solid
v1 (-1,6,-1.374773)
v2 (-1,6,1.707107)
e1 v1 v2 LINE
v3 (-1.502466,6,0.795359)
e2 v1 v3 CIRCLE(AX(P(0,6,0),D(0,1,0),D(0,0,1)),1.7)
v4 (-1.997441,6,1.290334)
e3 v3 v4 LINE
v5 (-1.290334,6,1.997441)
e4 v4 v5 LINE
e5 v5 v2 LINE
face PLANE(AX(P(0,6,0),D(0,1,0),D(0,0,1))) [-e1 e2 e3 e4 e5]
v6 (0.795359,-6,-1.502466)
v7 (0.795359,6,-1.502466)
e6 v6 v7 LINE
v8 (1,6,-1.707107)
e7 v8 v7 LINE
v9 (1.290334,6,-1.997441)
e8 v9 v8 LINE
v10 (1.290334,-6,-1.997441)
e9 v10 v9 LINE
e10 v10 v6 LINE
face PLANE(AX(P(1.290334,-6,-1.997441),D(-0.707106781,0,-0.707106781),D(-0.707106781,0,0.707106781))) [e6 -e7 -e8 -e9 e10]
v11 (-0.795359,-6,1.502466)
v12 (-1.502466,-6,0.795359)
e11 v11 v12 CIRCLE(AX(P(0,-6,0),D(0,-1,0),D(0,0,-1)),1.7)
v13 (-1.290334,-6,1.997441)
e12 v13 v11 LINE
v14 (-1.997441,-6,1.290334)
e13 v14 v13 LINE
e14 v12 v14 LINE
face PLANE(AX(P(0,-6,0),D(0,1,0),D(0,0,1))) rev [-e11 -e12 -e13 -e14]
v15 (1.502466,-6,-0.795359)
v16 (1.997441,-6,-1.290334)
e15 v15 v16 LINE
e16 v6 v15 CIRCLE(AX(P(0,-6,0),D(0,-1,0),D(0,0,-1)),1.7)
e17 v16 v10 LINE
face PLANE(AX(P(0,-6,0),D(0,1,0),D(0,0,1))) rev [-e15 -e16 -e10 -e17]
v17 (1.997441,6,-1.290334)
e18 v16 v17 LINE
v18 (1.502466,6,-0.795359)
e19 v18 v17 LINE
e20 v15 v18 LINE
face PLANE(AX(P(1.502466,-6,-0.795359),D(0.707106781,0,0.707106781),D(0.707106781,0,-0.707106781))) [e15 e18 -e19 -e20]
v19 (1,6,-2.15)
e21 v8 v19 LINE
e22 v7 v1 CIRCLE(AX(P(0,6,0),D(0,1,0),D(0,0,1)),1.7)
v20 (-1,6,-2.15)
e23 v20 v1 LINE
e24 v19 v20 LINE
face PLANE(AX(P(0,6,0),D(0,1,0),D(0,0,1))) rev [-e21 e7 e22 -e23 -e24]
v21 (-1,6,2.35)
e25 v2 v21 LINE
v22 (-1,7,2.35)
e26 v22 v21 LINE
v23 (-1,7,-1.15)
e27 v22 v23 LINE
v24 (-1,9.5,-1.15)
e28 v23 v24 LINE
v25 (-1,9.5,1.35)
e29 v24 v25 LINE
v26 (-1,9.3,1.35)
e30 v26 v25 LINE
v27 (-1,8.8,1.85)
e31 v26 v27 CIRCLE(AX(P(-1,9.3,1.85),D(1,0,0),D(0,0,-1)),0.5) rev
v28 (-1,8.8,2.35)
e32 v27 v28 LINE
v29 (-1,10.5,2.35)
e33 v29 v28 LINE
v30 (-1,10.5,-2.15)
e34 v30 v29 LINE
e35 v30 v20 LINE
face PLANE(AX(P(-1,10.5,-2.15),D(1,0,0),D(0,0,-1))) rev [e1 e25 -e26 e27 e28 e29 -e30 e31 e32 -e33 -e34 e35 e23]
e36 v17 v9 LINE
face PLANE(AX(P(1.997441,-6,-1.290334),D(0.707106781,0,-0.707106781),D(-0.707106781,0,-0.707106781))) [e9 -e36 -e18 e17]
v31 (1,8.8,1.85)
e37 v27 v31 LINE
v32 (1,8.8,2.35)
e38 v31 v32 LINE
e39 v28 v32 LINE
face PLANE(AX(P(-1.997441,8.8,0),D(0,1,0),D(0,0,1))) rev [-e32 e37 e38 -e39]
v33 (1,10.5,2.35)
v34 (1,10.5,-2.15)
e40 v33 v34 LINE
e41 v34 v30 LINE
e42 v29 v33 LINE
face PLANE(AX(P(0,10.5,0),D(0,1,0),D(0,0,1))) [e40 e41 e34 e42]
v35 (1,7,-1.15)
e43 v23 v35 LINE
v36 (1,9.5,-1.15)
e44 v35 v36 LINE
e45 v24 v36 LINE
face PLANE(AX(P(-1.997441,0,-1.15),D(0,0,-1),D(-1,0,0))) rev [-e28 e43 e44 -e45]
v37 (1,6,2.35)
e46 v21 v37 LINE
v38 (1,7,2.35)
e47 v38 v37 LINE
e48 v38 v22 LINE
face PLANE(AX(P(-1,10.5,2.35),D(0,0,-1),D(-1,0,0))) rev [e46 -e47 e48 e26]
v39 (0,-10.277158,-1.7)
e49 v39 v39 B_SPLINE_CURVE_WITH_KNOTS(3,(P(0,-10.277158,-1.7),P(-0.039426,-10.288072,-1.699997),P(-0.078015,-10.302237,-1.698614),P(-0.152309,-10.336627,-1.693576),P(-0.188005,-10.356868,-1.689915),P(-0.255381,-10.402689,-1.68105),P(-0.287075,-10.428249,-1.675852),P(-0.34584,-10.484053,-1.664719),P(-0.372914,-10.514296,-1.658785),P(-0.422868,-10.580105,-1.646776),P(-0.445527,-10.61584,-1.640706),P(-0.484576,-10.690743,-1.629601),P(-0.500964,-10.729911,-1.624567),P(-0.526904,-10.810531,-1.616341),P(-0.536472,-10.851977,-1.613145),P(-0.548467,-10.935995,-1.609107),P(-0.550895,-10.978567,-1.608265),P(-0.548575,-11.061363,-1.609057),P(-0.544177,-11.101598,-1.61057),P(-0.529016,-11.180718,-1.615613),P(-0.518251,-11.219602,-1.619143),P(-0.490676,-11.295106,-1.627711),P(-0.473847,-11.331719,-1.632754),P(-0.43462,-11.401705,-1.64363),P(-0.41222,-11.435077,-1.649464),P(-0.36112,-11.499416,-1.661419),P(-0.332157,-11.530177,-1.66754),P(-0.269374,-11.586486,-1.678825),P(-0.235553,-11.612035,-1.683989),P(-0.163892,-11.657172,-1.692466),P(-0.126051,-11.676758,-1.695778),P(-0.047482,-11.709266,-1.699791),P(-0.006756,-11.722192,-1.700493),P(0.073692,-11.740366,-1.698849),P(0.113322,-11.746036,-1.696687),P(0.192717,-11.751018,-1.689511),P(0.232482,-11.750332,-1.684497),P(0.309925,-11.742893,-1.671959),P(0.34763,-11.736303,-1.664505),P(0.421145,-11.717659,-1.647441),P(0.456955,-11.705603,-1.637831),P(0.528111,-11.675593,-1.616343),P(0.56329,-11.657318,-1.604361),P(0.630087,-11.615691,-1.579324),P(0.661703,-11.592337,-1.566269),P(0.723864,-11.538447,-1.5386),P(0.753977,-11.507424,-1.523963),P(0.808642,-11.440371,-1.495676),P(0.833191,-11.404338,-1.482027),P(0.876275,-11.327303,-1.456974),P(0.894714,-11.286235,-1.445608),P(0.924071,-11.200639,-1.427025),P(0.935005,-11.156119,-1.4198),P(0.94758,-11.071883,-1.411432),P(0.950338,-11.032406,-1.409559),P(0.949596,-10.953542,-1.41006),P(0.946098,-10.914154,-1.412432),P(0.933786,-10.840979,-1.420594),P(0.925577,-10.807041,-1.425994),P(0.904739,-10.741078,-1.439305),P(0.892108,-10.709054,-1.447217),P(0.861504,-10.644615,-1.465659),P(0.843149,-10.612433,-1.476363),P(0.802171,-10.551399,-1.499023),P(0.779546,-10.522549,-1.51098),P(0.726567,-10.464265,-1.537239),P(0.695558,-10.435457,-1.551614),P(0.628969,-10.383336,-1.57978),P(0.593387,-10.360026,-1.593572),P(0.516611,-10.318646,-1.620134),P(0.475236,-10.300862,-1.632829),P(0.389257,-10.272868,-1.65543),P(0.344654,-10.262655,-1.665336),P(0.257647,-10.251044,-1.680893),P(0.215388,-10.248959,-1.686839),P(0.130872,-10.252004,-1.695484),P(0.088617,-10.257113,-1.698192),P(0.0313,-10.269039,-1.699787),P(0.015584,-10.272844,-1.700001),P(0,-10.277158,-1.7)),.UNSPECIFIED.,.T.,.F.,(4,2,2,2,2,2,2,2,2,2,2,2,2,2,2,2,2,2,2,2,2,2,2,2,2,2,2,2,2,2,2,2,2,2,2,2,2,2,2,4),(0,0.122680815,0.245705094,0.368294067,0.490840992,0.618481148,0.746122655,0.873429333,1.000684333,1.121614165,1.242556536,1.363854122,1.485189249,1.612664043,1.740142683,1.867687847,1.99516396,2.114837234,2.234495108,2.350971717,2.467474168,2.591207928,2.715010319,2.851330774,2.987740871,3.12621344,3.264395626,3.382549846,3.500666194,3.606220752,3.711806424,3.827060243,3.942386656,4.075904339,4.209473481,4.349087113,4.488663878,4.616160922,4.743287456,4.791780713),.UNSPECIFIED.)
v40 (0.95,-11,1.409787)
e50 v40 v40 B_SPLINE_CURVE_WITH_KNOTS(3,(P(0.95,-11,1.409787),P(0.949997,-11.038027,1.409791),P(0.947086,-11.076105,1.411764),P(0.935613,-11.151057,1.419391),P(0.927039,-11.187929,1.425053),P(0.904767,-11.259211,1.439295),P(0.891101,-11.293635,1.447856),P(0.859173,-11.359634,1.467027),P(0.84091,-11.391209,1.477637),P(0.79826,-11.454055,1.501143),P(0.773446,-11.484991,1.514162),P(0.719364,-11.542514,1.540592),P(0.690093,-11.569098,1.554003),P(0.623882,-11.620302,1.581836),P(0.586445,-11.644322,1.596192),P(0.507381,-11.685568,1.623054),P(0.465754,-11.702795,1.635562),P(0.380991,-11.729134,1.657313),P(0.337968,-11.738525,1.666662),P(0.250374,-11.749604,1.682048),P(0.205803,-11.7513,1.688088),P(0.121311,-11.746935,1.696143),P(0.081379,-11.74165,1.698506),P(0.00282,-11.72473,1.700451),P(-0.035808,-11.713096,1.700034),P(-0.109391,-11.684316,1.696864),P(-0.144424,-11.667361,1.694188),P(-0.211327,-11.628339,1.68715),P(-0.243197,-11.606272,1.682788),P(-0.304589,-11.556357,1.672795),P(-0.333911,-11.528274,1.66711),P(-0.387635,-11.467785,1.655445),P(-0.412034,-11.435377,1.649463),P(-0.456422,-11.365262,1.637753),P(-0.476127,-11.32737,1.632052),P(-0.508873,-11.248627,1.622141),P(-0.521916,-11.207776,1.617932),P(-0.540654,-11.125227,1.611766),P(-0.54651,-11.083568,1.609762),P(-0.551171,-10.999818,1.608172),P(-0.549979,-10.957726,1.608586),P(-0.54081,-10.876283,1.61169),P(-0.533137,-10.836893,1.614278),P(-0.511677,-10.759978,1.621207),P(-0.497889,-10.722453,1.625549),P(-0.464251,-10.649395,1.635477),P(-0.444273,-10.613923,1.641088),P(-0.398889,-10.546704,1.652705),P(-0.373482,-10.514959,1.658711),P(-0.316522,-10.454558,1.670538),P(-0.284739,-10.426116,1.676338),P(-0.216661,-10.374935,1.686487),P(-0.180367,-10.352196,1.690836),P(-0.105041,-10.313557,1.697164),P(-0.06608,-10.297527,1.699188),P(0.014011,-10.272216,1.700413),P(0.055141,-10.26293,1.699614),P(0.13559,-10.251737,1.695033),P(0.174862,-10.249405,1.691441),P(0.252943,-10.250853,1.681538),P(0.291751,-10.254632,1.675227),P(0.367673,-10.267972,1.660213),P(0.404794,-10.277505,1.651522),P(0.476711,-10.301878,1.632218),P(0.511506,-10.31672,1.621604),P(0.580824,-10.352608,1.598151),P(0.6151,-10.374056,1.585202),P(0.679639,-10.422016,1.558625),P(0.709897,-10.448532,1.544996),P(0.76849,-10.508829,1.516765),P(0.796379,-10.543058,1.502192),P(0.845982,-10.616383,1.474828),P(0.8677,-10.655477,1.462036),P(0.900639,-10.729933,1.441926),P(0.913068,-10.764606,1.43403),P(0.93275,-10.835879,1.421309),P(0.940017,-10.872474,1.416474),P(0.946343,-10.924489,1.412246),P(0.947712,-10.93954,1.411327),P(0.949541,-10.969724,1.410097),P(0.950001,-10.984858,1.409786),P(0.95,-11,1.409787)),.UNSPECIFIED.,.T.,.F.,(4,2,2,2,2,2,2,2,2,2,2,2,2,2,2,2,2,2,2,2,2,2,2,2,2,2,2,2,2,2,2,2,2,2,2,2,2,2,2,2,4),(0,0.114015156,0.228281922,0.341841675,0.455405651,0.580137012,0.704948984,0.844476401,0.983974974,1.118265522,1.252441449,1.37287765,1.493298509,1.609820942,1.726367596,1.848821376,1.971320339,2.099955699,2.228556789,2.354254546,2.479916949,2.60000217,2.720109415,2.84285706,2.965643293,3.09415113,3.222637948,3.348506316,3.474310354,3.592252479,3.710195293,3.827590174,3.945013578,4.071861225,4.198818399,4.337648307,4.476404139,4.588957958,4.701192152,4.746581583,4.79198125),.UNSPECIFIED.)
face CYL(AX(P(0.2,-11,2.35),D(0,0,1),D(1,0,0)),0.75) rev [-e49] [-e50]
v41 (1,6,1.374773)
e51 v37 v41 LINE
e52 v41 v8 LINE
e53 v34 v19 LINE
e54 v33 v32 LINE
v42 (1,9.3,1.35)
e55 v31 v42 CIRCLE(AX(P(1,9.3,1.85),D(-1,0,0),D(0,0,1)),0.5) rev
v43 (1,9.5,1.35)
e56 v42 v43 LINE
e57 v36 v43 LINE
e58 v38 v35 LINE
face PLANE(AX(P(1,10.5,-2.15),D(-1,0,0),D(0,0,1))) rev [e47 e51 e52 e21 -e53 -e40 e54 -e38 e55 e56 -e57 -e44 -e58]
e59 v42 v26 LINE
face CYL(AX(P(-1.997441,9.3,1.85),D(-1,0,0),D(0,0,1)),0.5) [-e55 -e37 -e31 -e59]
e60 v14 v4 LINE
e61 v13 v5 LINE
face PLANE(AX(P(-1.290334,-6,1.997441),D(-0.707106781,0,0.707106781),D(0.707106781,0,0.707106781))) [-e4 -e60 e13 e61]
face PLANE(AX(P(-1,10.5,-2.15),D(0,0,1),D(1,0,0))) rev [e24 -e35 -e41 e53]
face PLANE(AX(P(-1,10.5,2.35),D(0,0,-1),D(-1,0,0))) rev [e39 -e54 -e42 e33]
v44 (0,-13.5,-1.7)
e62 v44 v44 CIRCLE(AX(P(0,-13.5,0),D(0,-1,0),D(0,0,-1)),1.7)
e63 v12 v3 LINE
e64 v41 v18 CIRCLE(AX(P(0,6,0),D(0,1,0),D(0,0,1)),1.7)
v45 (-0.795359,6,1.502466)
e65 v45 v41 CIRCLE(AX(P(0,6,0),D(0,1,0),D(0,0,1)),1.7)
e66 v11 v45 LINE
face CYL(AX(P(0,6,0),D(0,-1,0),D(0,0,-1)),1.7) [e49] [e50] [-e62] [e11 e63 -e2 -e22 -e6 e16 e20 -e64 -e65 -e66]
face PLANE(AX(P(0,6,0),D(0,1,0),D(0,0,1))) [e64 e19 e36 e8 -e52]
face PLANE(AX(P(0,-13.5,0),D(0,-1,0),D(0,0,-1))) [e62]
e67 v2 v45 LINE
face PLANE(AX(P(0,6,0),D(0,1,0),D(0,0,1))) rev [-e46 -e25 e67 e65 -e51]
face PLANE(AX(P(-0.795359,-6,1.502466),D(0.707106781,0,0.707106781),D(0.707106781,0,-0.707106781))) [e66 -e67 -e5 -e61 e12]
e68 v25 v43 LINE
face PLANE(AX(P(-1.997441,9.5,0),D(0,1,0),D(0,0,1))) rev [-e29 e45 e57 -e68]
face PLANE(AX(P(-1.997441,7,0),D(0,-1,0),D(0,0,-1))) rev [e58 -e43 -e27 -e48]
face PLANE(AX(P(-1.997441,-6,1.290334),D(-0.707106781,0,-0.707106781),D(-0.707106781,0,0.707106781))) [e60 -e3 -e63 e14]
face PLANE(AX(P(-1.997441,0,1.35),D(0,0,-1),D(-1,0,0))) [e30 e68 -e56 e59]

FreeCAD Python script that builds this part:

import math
import FreeCAD as App
import Part
import Sketcher

V = App.Vector
Q = App.Units.Quantity


def edges_at(feature, points):
    """Names of the edges that pass closest to the given points."""
    edges = feature.Shape.Edges
    near = lambda p: min(range(len(edges)), key=lambda i: edges[i].distToShape(Part.Vertex(*p))[0])
    return sorted({f"Edge{near(p) + 1}" for p in points})


def add_polygon(sketch, points):
    """Adds a closed chain of lines whose ends are joined by coincident constraints."""
    first, n = sketch.GeometryCount, len(points)
    for a, b in zip(points, points[1:] + points[:1]):
        sketch.addGeometry(Part.LineSegment(App.Vector(*a, 0), App.Vector(*b, 0)), False)
    for i in range(n):
        sketch.addConstraint(Sketcher.Constraint("Coincident", first + i, 2, first + (i + 1) % n, 1))

doc = App.newDocument("Part")
body = doc.addObject("PartDesign::Body", "Body")

sketch1 = body.newObject("Sketcher::SketchObject", "Sketch")
sketch1.AttachmentSupport = (doc.getObject("XZ_Plane"), [""])
sketch1.MapMode = "FlatFace"
sketch1.addGeometry(Part.Circle(V(0, 0, 0), V(0, 0, 1), 1.7), False)
sketch1.addConstraint([
    Sketcher.Constraint("Coincident", 0, 3, -1, 1),
    Sketcher.Constraint("Diameter", 0, 3.4),
])
pad1 = body.newObject("PartDesign::Pad", "Pad")
pad1.Profile = sketch1
pad1.Length = 12
pad1.Midplane = True

sketch2 = body.newObject("Sketcher::SketchObject", "Sketch001")
sketch2.AttachmentSupport = (doc.getObject("XZ_Plane"), [""])
sketch2.MapMode = "FlatFace"
sketch2.AttachmentOffset = App.Placement(V(0, 0, -6), App.Rotation())
sketch2.addGeometry([
    Part.LineSegment(V(-1.3, 2, 0), V(-0.8, 1.5, 0)),
    Part.ArcOfCircle(Part.Circle(V(0, 0, 0), V(0, 0, 1), 1.7), math.radians(118), math.radians(152)),
    Part.LineSegment(V(-1.5, 0.8, 0), V(-2, 1.3, 0)),
    Part.LineSegment(V(-2, 1.3, 0), V(-1.3, 2, 0)),
    Part.LineSegment(V(1.3, -2, 0), V(0.8, -1.5, 0)),
    Part.ArcOfCircle(Part.Circle(V(0, 0, 0), V(0, 0, 1), 1.7), math.radians(-62), math.radians(-28)),
    Part.LineSegment(V(1.5, -0.8, 0), V(2, -1.3, 0)),
    Part.LineSegment(V(2, -1.3, 0), V(1.3, -2, 0)),
], False)
sketch2.addConstraint([
    Sketcher.Constraint("Coincident", 0, 2, 1, 1),
    Sketcher.Constraint("Coincident", 1, 2, 2, 1),
    Sketcher.Constraint("Coincident", 2, 2, 3, 1),
    Sketcher.Constraint("Coincident", 3, 2, 0, 1),
    Sketcher.Constraint("Coincident", 4, 2, 5, 1),
    Sketcher.Constraint("Coincident", 5, 2, 6, 1),
    Sketcher.Constraint("Coincident", 6, 2, 7, 1),
    Sketcher.Constraint("Coincident", 7, 2, 4, 1),
    Sketcher.Constraint("Coincident", 1, 3, -1, 1),
    Sketcher.Constraint("Coincident", 5, 3, -1, 1),
    Sketcher.Constraint("Equal", 1, 5),
    Sketcher.Constraint("Symmetric", 2, 2, 6, 2, -1, 1),
    Sketcher.Constraint("Symmetric", 3, 2, 7, 2, -1, 1),
    Sketcher.Constraint("Parallel", 0, 2),
    Sketcher.Constraint("Perpendicular", 2, 3),
    Sketcher.Constraint("Perpendicular", 3, 4),
    Sketcher.Constraint("Parallel", 4, 6),
    Sketcher.Constraint("Equal", 0, 2),
    Sketcher.Constraint("Radius", 1, 1.7),
    Sketcher.Constraint("Angle", 0, Q("-45 deg")),
    Sketcher.Constraint("Distance", 3, 1.0),
    Sketcher.Constraint("Distance", 0, 0.7),
])
pad2 = body.newObject("PartDesign::Pad", "Pad001")
pad2.Profile = sketch2
pad2.Length = 12

sketch3 = body.newObject("Sketcher::SketchObject", "Sketch002")
sketch3.AttachmentSupport = (doc.getObject("XZ_Plane"), [""])
sketch3.MapMode = "FlatFace"
sketch3.AttachmentOffset = App.Placement(V(0, 0, -6), App.Rotation())
add_polygon(sketch3, [(-1, -2.1), (-1, 2.4), (1, 2.4), (1, -2.1)])
sketch3.addConstraint([
    Sketcher.Constraint("Vertical", 0),
    Sketcher.Constraint("Horizontal", 1),
    Sketcher.Constraint("Vertical", 2),
    Sketcher.Constraint("Horizontal", 3),
    Sketcher.Constraint("DistanceX", 1, 1, 1, 2, 2.0),
    Sketcher.Constraint("DistanceY", 0, 1, 0, 2, 4.5),
    Sketcher.Constraint("DistanceX", 0, 2, -1, 1, 1.0),
    Sketcher.Constraint("DistanceY", -1, 1, 0, 2, 2.35),
])
pad3 = body.newObject("PartDesign::Pad", "Pad002")
pad3.Profile = sketch3
pad3.Length = 4.5
pad3.Reversed = True

sketch4 = body.newObject("Sketcher::SketchObject", "Sketch003")
sketch4.AttachmentSupport = (doc.getObject("YZ_Plane"), [""])
sketch4.MapMode = "FlatFace"
sketch4.AttachmentOffset = App.Placement(V(0, 0, 1), App.Rotation())
add_polygon(sketch4, [(7, 2.4), (7, -1.1), (9.5, -1.1), (9.5, 1.4), (8.8, 1.4), (8.8, 2.4)])
sketch4.addConstraint([
    Sketcher.Constraint("Vertical", 0),
    Sketcher.Constraint("Horizontal", 1),
    Sketcher.Constraint("Vertical", 2),
    Sketcher.Constraint("Horizontal", 3),
    Sketcher.Constraint("Vertical", 4),
    Sketcher.Constraint("Horizontal", 5),
    Sketcher.Constraint("Equal", 1, 2),
    Sketcher.Constraint("DistanceY", 4, 1, 4, 2, 1.0),
    Sketcher.Constraint("DistanceX", 1, 1, 1, 2, 2.5),
    Sketcher.Constraint("DistanceX", 3, 2, 3, 1, 0.7),
    Sketcher.Constraint("DistanceX", -1, 1, 0, 2, 7.0),
    Sketcher.Constraint("DistanceY", 0, 2, -1, 1, 1.15),
])
pocket1 = body.newObject("PartDesign::Pocket", "Pocket")
pocket1.Profile = sketch4
pocket1.Type = "ThroughAll"
doc.recompute()

fillet = body.newObject("PartDesign::Fillet", "Fillet")
fillet.Base = (pocket1, edges_at(pocket1, [(0, 8.8, 1.35)]))
fillet.Radius = 0.5

sketch5 = body.newObject("Sketcher::SketchObject", "Sketch004")
sketch5.AttachmentSupport = (doc.getObject("XZ_Plane"), [""])
sketch5.MapMode = "FlatFace"
sketch5.AttachmentOffset = App.Placement(V(0, 0, 6), App.Rotation())
sketch5.addGeometry(Part.Circle(V(0, 0, 0), V(0, 0, 1), 1.7), False)
sketch5.addConstraint([
    Sketcher.Constraint("Coincident", 0, 3, -1, 1),
    Sketcher.Constraint("Diameter", 0, 3.4),
])
pad4 = body.newObject("PartDesign::Pad", "Pad003")
pad4.Profile = sketch5
pad4.Length = 2

sketch6 = body.newObject("Sketcher::SketchObject", "Sketch005")
sketch6.AttachmentSupport = (doc.getObject("XZ_Plane"), [""])
sketch6.MapMode = "FlatFace"
sketch6.AttachmentOffset = App.Placement(V(0, 0, 8), App.Rotation())
sketch6.addGeometry(Part.Circle(V(0, 0, 0), V(0, 0, 1), 1.7), False)
sketch6.addConstraint([
    Sketcher.Constraint("Coincident", 0, 3, -1, 1),
    Sketcher.Constraint("Diameter", 0, 3.4),
])
pad5 = body.newObject("PartDesign::Pad", "Pad004")
pad5.Profile = sketch6
pad5.Length = 5.5

sketch7 = body.newObject("Sketcher::SketchObject", "Sketch006")
sketch7.AttachmentSupport = (doc.getObject("XY_Plane"), [""])
sketch7.MapMode = "FlatFace"
sketch7.AttachmentOffset = App.Placement(V(0, 0, 2.35), App.Rotation())
sketch7.addGeometry(Part.Circle(V(0.2, -11, 0), V(0, 0, 1), 0.8), False)
sketch7.addConstraint([
    Sketcher.Constraint("Diameter", 0, 1.5),
    Sketcher.Constraint("DistanceY", 0, 3, -1, 1, 11.0),
    Sketcher.Constraint("DistanceX", -1, 1, 0, 3, 0.2),
])
doc.recompute()
hole = body.newObject("PartDesign::Hole", "Hole")
hole.Profile = sketch7
hole.ThreadType = "None"
hole.Diameter = 1.5
hole.DepthType = "ThroughAll"

doc.recompute()
